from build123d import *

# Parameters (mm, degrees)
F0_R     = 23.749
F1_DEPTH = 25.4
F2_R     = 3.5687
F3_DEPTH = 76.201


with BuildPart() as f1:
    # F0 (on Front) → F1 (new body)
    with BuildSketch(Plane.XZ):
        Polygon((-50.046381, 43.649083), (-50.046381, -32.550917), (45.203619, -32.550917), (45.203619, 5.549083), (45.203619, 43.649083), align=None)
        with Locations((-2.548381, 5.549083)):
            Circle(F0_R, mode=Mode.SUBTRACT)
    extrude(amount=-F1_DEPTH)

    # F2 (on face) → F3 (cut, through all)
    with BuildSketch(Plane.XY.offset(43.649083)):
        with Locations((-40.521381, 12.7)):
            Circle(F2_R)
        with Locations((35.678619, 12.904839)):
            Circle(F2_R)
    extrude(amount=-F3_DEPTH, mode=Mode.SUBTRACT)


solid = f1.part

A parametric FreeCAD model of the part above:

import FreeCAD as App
import Part
import Sketcher
from FreeCAD import Vector
Q = App.Units.Quantity

doc = App.newDocument("Part")
params = doc.addObject("Spreadsheet::Sheet", "Params")
for row, (alias, value) in enumerate([
    ("sketch1_diameter", "1.87 in"),
    ("sketch1_height", "3 in"),
    ("sketch1_width", "3.75 in"),
    ("pad1_length", "1 in"),
    ("sketch2_diameter", "0.281 in"),
], start=1):
    params.set(f"A{row}", alias)
    params.set(f"B{row}", "=" + value)
    params.setAlias(f"B{row}", alias)

body = doc.addObject("PartDesign::Body", "Body")

# Sketch on XZ plane
sketch1 = doc.addObject("Sketcher::SketchObject", "Sketch")
body.addObject(sketch1)
sketch1.AttachmentSupport = (doc.XZ_Plane, [""])
sketch1.MapMode = "FlatFace"
sketch1.addGeometry(Part.LineSegment(Vector(-50, 44, 0), Vector(-50, -33, 0)), False)
sketch1.addGeometry(Part.LineSegment(Vector(-50, -33, 0), Vector(45, -33, 0)), False)
sketch1.addGeometry(Part.LineSegment(Vector(45, -33, 0), Vector(45, 44, 0)), False)
sketch1.addGeometry(Part.LineSegment(Vector(45, 44, 0), Vector(-50, 44, 0)), False)
sketch1.addGeometry(Part.Circle(Vector(-3, 6, 0), Vector(0, 0, 1), 24), False)
sketch1.addConstraint(Sketcher.Constraint("Coincident", 0, 2, 1, 1))
sketch1.addConstraint(Sketcher.Constraint("Coincident", 1, 2, 2, 1))
sketch1.addConstraint(Sketcher.Constraint("Coincident", 2, 2, 3, 1))
sketch1.addConstraint(Sketcher.Constraint("Coincident", 3, 2, 0, 1))
sketch1.addConstraint(Sketcher.Constraint("Vertical", 0))
sketch1.addConstraint(Sketcher.Constraint("Horizontal", 1))
sketch1.addConstraint(Sketcher.Constraint("Vertical", 2))
sketch1.addConstraint(Sketcher.Constraint("Horizontal", 3))
sketch1.addConstraint(Sketcher.Constraint("Diameter", 4, Q("1.87 in")))
sketch1.addConstraint(Sketcher.Constraint("DistanceY", 0, 2, 0, 1, Q("3 in")))
sketch1.addConstraint(Sketcher.Constraint("DistanceX", 1, 1, 1, 2, Q("3.75 in")))
sketch1.addConstraint(Sketcher.Constraint("DistanceY", 0, 2, 4, 3, Q("1.5 in")))
sketch1.addConstraint(Sketcher.Constraint("DistanceX", 0, 2, 4, 3, Q("1.87 in")))
sketch1.addConstraint(Sketcher.Constraint("DistanceX", 4, 3, -1, 1, Q("2.548381 mm")))
sketch1.addConstraint(Sketcher.Constraint("DistanceY", -1, 1, 4, 3, Q("5.549083 mm")))
sketch1.setExpression("Constraints[8]", "Params.sketch1_diameter")
sketch1.setExpression("Constraints[9]", "Params.sketch1_height")
sketch1.setExpression("Constraints[10]", "Params.sketch1_width")
pad1 = doc.addObject("PartDesign::Pad", "Pad")
body.addObject(pad1)
pad1.Profile = sketch1
pad1.setExpression("Length", "Params.pad1_length")
pad1.Reversed = True

# Sketch on XY plane
sketch2 = doc.addObject("Sketcher::SketchObject", "Sketch001")
body.addObject(sketch2)
sketch2.AttachmentSupport = (doc.XY_Plane, [""])
sketch2.MapMode = "FlatFace"
sketch2.AttachmentOffset = App.Placement(Vector(0, 0, 43.649083), App.Rotation())
sketch2.addGeometry(Part.Circle(Vector(-40.5, 12.7, 0), Vector(0, 0, 1), 3.6), False)
sketch2.addGeometry(Part.Circle(Vector(35.7, 12.9, 0), Vector(0, 0, 1), 3.6), False)
sketch2.addConstraint(Sketcher.Constraint("Equal", 0, 1))
sketch2.addConstraint(Sketcher.Constraint("Diameter", 0, Q("0.281 in")))
sketch2.addConstraint(Sketcher.Constraint("DistanceX", 0, 3, 1, 3, Q("3 in")))
sketch2.addConstraint(Sketcher.Constraint("DistanceY", -1, 1, 0, 3, Q("0.5 in")))
sketch2.addConstraint(Sketcher.Constraint("DistanceX", 0, 3, -1, 1, Q("40.521381 mm")))
sketch2.addConstraint(Sketcher.Constraint("DistanceY", -1, 1, 1, 3, Q("12.904839 mm")))
sketch2.setExpression("Constraints[1]", "Params.sketch2_diameter")
pocket1 = doc.addObject("PartDesign::Pocket", "Pocket")
body.addObject(pocket1)
pocket1.Profile = sketch2
pocket1.Type = "ThroughAll"

doc.recompute()
